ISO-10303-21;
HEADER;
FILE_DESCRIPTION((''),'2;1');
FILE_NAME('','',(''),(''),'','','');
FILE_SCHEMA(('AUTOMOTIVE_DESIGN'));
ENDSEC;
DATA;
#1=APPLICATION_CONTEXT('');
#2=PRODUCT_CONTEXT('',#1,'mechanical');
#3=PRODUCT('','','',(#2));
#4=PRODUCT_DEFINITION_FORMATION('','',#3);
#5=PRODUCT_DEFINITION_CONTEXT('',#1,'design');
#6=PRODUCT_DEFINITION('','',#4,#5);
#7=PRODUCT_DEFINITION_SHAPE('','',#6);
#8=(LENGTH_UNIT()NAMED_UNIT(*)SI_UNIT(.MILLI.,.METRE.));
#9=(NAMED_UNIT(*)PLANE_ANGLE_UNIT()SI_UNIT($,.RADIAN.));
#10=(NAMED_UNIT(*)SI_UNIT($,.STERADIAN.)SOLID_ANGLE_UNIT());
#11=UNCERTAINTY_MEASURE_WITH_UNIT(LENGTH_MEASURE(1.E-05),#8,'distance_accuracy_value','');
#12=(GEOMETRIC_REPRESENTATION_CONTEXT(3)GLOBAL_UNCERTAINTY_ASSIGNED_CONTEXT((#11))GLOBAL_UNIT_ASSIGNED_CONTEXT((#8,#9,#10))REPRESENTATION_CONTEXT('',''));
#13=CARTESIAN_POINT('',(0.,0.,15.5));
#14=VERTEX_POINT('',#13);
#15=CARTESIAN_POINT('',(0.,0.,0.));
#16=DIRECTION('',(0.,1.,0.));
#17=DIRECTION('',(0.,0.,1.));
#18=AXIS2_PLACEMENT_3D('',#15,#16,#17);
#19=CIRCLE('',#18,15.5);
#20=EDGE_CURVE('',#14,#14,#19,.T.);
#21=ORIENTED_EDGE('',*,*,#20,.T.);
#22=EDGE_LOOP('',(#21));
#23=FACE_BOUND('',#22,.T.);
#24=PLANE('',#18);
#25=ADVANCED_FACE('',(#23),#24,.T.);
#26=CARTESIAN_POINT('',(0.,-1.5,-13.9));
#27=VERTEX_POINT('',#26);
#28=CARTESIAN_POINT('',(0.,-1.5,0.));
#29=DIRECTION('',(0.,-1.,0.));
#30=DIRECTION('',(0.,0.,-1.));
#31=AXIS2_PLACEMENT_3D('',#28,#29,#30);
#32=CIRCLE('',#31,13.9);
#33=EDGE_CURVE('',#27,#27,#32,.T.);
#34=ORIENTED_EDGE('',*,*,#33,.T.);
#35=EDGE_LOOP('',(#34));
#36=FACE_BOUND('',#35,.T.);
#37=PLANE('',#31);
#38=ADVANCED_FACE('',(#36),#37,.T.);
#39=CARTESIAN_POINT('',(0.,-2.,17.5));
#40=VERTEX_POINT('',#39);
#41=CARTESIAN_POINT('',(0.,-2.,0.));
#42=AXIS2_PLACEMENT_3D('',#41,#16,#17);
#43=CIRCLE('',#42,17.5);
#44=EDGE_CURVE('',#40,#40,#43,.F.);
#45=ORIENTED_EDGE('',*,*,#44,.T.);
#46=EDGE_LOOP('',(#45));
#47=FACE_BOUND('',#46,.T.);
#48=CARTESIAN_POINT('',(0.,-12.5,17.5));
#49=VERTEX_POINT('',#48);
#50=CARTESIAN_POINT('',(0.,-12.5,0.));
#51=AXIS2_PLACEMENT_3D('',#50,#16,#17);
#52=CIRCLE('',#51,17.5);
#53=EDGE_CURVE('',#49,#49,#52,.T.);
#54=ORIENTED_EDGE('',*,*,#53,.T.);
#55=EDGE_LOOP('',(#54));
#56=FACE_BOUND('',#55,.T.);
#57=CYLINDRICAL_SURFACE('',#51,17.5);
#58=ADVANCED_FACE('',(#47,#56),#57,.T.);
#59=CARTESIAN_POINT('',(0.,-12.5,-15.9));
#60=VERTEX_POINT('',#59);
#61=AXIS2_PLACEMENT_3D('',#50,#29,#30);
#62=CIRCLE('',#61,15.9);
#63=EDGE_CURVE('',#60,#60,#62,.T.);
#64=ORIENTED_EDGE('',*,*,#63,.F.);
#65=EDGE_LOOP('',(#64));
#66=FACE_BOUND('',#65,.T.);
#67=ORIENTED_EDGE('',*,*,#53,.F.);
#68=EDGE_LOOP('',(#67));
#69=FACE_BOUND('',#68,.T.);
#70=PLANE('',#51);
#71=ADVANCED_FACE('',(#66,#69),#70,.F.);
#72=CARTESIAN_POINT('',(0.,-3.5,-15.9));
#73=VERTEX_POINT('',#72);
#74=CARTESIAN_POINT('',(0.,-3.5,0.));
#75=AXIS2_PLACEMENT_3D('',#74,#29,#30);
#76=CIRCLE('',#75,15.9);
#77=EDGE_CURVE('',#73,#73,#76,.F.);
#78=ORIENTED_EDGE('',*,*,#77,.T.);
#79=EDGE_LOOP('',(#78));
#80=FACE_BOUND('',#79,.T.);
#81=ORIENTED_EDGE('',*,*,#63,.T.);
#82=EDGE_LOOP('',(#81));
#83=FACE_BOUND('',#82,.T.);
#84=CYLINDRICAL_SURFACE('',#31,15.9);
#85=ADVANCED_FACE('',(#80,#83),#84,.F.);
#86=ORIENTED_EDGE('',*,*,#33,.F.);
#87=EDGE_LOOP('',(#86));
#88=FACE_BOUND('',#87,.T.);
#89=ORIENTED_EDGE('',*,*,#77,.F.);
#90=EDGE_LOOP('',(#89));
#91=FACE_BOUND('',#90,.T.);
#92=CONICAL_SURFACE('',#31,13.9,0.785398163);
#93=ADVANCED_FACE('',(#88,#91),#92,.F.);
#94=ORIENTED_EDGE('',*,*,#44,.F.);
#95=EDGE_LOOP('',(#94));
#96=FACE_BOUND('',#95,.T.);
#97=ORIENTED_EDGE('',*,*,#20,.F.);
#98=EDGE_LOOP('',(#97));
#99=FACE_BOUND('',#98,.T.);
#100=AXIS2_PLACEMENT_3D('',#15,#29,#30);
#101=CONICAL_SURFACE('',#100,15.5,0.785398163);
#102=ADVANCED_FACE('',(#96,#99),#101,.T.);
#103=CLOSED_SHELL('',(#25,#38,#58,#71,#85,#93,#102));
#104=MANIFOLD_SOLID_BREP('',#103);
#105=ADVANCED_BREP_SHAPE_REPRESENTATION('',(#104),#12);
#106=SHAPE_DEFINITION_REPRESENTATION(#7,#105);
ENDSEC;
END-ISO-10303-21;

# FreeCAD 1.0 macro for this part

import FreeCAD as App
import Part
import Sketcher

V = App.Vector
Q = App.Units.Quantity


def edges_at(feature, points):
    """Names of the edges that pass closest to the given points."""
    edges = feature.Shape.Edges
    near = lambda p: min(range(len(edges)), key=lambda i: edges[i].distToShape(Part.Vertex(*p))[0])
    return sorted({f"Edge{near(p) + 1}" for p in points})

doc = App.newDocument("Part")
body = doc.addObject("PartDesign::Body", "Body")

sketch1 = doc.addObject("Sketcher::SketchObject", "Sketch")
body.addObject(sketch1)
sketch1.AttachmentSupport = (doc.XZ_Plane, [""])
sketch1.MapMode = "FlatFace"
sketch1.addGeometry(Part.Circle(V(0, 0, 0), V(0, 0, 1), 18), False)
sketch1.addConstraint([
    Sketcher.Constraint("Coincident", 0, 3, -1, 1),
    Sketcher.Constraint("Diameter", 0, Q("35 mm")),
])
pad1 = doc.addObject("PartDesign::Pad", "Pad")
body.addObject(pad1)
pad1.Profile = sketch1
pad1.Length = 12.5

sketch2 = doc.addObject("Sketcher::SketchObject", "Sketch001")
body.addObject(sketch2)
sketch2.AttachmentSupport = (doc.XZ_Plane, [""])
sketch2.MapMode = "FlatFace"
sketch2.AttachmentOffset = App.Placement(V(0, 0, 12.5), App.Rotation())
sketch2.addGeometry(Part.Circle(V(0, 0, 0), V(0, 0, 1), 16), False)
sketch2.addConstraint([
    Sketcher.Constraint("Coincident", 0, 3, -1, 1),
    Sketcher.Constraint("Diameter", 0, Q("31.8 mm")),
])
pocket1 = doc.addObject("PartDesign::Pocket", "Pocket")
body.addObject(pocket1)
pocket1.Profile = sketch2
pocket1.Length = 11
doc.recompute()

chamfer = doc.addObject("PartDesign::Chamfer", "Chamfer")
body.addObject(chamfer)
chamfer.Base = (pocket1, edges_at(pocket1, [(-17.5, 0, 0)]))
chamfer.Size = 2
doc.recompute()

chamfer2 = doc.addObject("PartDesign::Chamfer", "Chamfer001")
body.addObject(chamfer2)
chamfer2.Base = (chamfer, edges_at(chamfer, [(-15.9, -1.5, 0)]))
chamfer2.Size = 2

doc.recompute()
